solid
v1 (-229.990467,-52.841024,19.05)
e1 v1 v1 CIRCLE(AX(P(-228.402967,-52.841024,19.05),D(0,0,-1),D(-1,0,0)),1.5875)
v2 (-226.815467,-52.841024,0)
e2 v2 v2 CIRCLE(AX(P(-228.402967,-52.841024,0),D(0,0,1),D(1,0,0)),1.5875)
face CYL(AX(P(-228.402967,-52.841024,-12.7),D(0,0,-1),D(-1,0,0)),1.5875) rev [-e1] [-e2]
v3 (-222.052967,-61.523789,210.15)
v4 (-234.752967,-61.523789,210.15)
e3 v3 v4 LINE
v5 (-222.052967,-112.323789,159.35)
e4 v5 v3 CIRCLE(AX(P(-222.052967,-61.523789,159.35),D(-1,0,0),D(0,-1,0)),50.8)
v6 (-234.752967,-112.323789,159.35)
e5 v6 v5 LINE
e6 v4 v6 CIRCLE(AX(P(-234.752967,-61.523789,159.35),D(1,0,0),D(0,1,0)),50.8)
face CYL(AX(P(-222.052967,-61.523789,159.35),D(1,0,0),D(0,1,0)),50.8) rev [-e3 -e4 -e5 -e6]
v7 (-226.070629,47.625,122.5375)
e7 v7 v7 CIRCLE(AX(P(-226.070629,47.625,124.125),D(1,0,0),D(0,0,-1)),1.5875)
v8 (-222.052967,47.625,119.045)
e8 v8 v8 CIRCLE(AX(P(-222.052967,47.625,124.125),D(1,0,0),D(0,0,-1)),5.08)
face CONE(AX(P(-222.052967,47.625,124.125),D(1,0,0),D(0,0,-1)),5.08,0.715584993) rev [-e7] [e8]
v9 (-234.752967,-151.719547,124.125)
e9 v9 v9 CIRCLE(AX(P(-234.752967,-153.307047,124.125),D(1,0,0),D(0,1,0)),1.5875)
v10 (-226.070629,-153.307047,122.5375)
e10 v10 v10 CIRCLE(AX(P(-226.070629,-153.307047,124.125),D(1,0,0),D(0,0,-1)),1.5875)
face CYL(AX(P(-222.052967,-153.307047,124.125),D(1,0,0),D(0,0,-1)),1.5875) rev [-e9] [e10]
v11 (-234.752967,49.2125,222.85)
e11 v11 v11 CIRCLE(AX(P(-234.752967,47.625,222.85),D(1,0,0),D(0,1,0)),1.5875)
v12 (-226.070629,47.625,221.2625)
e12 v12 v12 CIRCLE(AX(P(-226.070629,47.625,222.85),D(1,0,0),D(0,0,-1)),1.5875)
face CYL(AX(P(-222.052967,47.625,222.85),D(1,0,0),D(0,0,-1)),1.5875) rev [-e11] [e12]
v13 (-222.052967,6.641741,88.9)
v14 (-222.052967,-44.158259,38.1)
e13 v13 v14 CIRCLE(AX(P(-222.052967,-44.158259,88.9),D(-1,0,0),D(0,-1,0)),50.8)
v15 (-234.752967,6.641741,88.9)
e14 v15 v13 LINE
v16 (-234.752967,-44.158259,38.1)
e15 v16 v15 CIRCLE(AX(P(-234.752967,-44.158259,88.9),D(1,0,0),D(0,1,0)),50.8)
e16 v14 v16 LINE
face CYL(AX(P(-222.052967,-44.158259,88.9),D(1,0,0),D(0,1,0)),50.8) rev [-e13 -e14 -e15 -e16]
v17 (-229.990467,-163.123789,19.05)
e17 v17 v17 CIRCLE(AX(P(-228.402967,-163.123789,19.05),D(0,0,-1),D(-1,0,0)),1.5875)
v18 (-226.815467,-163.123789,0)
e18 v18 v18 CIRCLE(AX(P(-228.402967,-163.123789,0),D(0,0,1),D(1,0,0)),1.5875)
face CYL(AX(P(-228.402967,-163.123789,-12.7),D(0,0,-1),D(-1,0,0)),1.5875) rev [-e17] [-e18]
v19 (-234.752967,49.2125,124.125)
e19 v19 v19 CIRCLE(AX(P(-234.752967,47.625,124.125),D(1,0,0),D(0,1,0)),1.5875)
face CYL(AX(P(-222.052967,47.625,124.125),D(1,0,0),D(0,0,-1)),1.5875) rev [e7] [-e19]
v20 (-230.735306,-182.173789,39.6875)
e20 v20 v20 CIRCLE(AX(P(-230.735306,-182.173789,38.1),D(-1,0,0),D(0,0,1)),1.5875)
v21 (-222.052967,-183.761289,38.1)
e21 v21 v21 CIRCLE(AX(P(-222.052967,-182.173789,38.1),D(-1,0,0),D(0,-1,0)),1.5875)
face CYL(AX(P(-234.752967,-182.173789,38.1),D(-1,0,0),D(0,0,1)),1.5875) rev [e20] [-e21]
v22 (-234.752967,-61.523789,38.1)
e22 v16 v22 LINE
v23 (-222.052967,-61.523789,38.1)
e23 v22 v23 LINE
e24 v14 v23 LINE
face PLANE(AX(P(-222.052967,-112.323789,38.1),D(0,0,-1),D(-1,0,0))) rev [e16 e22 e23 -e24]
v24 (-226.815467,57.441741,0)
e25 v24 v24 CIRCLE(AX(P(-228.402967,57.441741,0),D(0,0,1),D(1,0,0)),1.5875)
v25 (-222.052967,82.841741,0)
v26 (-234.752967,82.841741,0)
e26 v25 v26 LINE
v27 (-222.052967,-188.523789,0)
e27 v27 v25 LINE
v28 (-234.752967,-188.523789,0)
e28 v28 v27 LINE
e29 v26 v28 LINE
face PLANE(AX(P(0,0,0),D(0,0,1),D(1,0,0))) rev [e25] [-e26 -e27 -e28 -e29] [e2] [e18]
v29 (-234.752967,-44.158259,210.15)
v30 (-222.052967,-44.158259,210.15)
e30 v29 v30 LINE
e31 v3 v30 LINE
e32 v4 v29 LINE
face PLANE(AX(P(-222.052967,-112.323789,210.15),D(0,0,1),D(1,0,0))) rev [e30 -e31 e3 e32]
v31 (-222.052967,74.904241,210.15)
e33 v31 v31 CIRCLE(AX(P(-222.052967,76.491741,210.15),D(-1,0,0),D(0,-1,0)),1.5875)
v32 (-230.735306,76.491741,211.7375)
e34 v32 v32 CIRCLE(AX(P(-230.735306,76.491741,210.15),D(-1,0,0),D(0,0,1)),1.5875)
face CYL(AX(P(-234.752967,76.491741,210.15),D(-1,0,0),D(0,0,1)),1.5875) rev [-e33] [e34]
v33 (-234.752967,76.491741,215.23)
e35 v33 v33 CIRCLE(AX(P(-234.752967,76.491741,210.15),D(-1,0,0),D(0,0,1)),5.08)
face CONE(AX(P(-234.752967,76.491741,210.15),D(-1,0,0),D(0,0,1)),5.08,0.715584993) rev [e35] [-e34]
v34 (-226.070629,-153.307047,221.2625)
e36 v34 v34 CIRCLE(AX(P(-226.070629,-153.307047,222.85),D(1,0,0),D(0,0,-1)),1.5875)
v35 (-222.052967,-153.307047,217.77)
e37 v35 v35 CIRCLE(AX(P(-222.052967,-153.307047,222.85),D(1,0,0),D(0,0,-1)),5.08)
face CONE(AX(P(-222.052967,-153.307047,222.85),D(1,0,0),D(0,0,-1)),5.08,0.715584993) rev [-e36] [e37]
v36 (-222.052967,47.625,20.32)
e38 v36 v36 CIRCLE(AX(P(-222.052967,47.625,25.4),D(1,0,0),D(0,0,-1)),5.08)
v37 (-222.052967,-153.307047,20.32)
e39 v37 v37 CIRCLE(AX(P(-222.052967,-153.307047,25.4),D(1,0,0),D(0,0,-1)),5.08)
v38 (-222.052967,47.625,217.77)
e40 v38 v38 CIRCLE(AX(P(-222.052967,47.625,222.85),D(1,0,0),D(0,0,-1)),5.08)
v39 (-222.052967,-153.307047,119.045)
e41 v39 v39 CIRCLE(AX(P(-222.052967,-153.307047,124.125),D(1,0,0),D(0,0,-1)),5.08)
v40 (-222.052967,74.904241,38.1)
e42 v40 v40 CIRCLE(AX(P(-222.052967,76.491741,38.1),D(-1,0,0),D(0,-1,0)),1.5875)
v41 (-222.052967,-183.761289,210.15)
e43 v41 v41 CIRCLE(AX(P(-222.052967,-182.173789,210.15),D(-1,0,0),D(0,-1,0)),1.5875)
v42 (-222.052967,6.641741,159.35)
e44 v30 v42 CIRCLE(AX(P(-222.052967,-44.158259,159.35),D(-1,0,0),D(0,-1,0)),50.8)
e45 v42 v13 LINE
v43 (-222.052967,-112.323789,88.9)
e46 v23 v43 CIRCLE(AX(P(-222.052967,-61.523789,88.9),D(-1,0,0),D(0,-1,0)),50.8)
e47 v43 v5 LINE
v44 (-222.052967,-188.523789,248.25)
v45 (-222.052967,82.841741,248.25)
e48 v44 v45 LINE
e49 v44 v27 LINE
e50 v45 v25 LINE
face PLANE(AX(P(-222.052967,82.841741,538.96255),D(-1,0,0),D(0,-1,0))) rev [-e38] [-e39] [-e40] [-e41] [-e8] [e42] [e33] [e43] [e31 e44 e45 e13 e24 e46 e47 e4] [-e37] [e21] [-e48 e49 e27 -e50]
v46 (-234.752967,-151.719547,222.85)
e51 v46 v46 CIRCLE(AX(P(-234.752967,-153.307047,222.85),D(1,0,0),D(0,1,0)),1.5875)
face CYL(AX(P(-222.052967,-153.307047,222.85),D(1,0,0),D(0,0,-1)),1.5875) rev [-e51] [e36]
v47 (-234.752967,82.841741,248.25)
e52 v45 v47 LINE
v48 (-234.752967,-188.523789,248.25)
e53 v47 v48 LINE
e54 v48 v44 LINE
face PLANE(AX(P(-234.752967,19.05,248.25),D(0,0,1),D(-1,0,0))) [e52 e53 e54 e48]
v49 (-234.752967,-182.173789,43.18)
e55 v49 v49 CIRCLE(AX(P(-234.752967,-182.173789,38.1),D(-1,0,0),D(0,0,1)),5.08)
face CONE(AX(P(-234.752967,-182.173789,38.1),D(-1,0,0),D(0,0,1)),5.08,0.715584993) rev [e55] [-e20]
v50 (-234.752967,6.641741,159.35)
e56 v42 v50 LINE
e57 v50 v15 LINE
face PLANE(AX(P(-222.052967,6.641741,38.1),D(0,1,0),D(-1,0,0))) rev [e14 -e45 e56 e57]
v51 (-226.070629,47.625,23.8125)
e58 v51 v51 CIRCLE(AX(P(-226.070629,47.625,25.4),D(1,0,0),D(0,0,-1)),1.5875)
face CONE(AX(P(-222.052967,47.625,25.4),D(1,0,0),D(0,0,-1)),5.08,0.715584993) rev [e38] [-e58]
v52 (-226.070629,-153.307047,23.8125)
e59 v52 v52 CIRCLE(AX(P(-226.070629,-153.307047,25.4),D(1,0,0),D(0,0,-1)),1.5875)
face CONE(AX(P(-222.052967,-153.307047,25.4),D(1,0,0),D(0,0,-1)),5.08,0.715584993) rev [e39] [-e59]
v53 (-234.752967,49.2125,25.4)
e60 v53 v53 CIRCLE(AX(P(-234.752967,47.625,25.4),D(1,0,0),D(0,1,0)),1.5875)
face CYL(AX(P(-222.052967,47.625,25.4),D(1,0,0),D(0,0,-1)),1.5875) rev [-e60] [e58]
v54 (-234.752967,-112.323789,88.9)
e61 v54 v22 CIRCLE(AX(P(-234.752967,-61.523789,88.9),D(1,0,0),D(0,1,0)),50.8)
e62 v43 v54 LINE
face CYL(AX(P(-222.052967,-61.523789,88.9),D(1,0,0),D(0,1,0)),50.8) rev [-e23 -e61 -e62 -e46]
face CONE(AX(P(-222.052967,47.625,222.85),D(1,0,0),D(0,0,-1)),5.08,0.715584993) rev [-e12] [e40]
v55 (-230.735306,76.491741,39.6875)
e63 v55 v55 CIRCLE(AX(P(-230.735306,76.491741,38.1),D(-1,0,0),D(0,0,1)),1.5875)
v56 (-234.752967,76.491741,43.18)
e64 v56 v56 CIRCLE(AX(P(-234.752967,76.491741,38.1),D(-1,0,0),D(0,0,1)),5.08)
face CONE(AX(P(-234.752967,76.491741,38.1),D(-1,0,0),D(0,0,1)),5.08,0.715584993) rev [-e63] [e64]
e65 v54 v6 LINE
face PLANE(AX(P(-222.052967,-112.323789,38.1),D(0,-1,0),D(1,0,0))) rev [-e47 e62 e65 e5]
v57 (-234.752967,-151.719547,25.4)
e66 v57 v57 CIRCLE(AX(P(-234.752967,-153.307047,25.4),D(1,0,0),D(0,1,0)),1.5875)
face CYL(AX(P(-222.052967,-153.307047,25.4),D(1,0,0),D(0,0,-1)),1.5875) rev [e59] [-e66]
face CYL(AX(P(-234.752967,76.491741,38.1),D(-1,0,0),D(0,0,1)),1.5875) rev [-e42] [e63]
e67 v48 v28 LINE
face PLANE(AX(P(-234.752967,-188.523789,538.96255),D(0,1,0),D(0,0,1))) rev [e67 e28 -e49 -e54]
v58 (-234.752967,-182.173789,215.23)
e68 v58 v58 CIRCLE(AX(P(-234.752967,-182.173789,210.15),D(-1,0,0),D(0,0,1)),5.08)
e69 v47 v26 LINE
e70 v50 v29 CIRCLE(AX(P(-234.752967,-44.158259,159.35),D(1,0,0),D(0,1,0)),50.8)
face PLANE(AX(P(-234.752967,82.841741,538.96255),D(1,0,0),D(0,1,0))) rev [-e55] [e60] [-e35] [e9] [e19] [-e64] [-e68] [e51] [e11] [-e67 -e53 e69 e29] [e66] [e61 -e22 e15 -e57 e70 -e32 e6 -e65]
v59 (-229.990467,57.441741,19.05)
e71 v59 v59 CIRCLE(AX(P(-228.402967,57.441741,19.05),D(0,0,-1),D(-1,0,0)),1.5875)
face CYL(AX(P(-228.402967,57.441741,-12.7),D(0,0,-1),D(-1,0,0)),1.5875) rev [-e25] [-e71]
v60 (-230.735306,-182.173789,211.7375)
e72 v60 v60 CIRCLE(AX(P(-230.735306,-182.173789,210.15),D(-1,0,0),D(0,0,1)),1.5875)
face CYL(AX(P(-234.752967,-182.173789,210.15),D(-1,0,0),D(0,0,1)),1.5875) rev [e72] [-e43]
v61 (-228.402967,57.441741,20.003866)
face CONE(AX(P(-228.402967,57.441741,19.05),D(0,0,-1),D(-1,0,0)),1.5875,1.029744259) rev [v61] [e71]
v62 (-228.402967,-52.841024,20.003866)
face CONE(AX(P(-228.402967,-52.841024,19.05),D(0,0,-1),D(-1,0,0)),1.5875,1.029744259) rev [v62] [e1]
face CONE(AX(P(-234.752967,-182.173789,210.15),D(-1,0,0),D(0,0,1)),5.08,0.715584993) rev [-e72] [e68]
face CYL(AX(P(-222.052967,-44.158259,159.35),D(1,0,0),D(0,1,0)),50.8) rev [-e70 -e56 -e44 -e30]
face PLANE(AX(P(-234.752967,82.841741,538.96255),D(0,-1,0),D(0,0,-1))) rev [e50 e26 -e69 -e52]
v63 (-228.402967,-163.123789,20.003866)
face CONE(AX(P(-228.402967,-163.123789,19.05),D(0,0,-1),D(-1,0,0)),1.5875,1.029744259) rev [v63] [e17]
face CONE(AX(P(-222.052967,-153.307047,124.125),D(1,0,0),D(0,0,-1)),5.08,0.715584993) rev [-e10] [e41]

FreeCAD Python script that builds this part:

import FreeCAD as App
import Part
import Sketcher
Q = App.Units.Quantity


def edges_at(feature, points):
    """Names of the edges that pass closest to the given points."""
    edges = feature.Shape.Edges
    near = lambda p: min(range(len(edges)), key=lambda i: edges[i].distToShape(Part.Vertex(*p))[0])
    return sorted({f"Edge{near(p) + 1}" for p in points})

doc = App.newDocument("Part")
body = doc.addObject("PartDesign::Body", "Body")

# Sketch on XY plane
sketch1 = body.newObject("Sketcher::SketchObject", "Sketch")
sketch1.AttachmentSupport = (doc.getObject("XY_Plane"), [""])
sketch1.MapMode = "FlatFace"
sketch1.addGeometry([
    Part.LineSegment(App.Vector(-235, 83, 0), App.Vector(-235, -189, 0)),
    Part.LineSegment(App.Vector(-235, -189, 0), App.Vector(-222, -189, 0)),
    Part.LineSegment(App.Vector(-222, -189, 0), App.Vector(-222, 83, 0)),
    Part.LineSegment(App.Vector(-222, 83, 0), App.Vector(-235, 83, 0)),
], False)
sketch1.addConstraint([
    Sketcher.Constraint("Coincident", 0, 2, 1, 1),
    Sketcher.Constraint("Coincident", 1, 2, 2, 1),
    Sketcher.Constraint("Coincident", 2, 2, 3, 1),
    Sketcher.Constraint("Coincident", 3, 2, 0, 1),
    Sketcher.Constraint("Vertical", 0),
    Sketcher.Constraint("Horizontal", 1),
    Sketcher.Constraint("Vertical", 2),
    Sketcher.Constraint("Horizontal", 3),
    Sketcher.Constraint("DistanceX", 1, 1, 1, 2, Q("0.5 in")),
    Sketcher.Constraint("DistanceY", 0, 2, 0, 1, Q("271.36553 mm")),
    Sketcher.Constraint("DistanceY", 0, 2, -1, 1, Q("188.523789 mm")),
    Sketcher.Constraint("DistanceX", 0, 2, -1, 1, Q("234.752967 mm")),
])
pad1 = body.newObject("PartDesign::Pad", "Pad")
pad1.Profile = sketch1
pad1.Length = 248.25

# Sketch on YZ plane
sketch2 = body.newObject("Sketcher::SketchObject", "Sketch001")
sketch2.AttachmentSupport = (doc.getObject("YZ_Plane"), [""])
sketch2.MapMode = "FlatFace"
sketch2.AttachmentOffset = App.Placement(App.Vector(0, 0, -234.752967), App.Rotation())
sketch2.addGeometry([
    Part.LineSegment(App.Vector(7, 38, 0), App.Vector(-112, 38, 0)),
    Part.LineSegment(App.Vector(-112, 38, 0), App.Vector(-112, 210, 0)),
    Part.LineSegment(App.Vector(-112, 210, 0), App.Vector(7, 210, 0)),
    Part.LineSegment(App.Vector(7, 210, 0), App.Vector(7, 38, 0)),
], False)
sketch2.addConstraint([
    Sketcher.Constraint("Coincident", 0, 2, 1, 1),
    Sketcher.Constraint("Coincident", 1, 2, 2, 1),
    Sketcher.Constraint("Coincident", 2, 2, 3, 1),
    Sketcher.Constraint("Coincident", 3, 2, 0, 1),
    Sketcher.Constraint("Horizontal", 0),
    Sketcher.Constraint("Vertical", 1),
    Sketcher.Constraint("Horizontal", 2),
    Sketcher.Constraint("Vertical", 3),
    Sketcher.Constraint("DistanceY", -1, 1, 0, 2, Q("1.5 in")),
    Sketcher.Constraint("DistanceY", 1, 1, 1, 2, Q("172.05 mm")),
    Sketcher.Constraint("DistanceX", 0, 2, 0, 1, Q("118.96553 mm")),
    Sketcher.Constraint("DistanceX", 0, 2, -1, 1, Q("112.323789 mm")),
])
pocket1 = body.newObject("PartDesign::Pocket", "Pocket")
pocket1.Profile = sketch2
pocket1.Type = "ThroughAll"
pocket1.Reversed = True
doc.recompute()

fillet = body.newObject("PartDesign::Fillet", "Fillet")
fillet.Base = (pocket1, edges_at(pocket1, [
    (-228.403, 6.642, 210.15),
    (-228.403, -112.324, 210.15),
    (-228.403, -112.324, 38.1),
    (-228.403, 6.642, 38.1),
]))
fillet.Radius = Q("2 in")

# Sketch on XY plane
sketch3 = body.newObject("Sketcher::SketchObject", "Sketch002")
sketch3.AttachmentSupport = (doc.getObject("XY_Plane"), [""])
sketch3.MapMode = "FlatFace"
sketch3.AttachmentOffset = App.Placement(App.Vector(0, 0, -0.5 * 25.4), App.Rotation())
sketch3.addGeometry([
    Part.Circle(App.Vector(-203, -182.2, 0), App.Vector(0, 0, 1), 1.6),  # 0
    Part.Circle(App.Vector(-203, 76.5, 0), App.Vector(0, 0, 1), 1.6),  # 1
    Part.Circle(App.Vector(-123.7, 76.5, 0), App.Vector(0, 0, 1), 1.6),  # 2
    Part.Circle(App.Vector(-228.4, 57.4, 0), App.Vector(0, 0, 1), 1.6),  # 3
    Part.Circle(App.Vector(-228.4, -52.8, 0), App.Vector(0, 0, 1), 1.6),  # 4
    Part.Circle(App.Vector(-228.4, -163.1, 0), App.Vector(0, 0, 1), 1.6),  # 5
    Part.Circle(App.Vector(-123.7, -182.2, 0), App.Vector(0, 0, 1), 1.6),  # 6
], False)
sketch3.addConstraint([
    Sketcher.Constraint("Equal", 0, 1),
    Sketcher.Constraint("Equal", 1, 2),
    Sketcher.Constraint("Equal", 2, 3),
    Sketcher.Constraint("Equal", 3, 4),
    Sketcher.Constraint("Equal", 4, 5),
    Sketcher.Constraint("Equal", 5, 6),
    Sketcher.Constraint("Horizontal", 1, 3, 2, 3),
    Sketcher.Constraint("Horizontal", 0, 3, 6, 3),
    Sketcher.Constraint("Vertical", 0, 3, 1, 3),
    Sketcher.Constraint("Vertical", 3, 3, 4, 3),
    Sketcher.Constraint("Vertical", 4, 3, 5, 3),
    Sketcher.Constraint("Vertical", 2, 3, 6, 3),
    Sketcher.Constraint("Diameter", 0, Q("0.125 in")),
    Sketcher.Constraint("DistanceX", 3, 3, 1, 3, Q("1 in")),
    Sketcher.Constraint("DistanceY", 3, 3, 1, 3, Q("0.75 in")),
    Sketcher.Constraint("DistanceY", 0, 3, 5, 3, Q("0.75 in")),
    Sketcher.Constraint("DistanceY", 0, 3, -1, 1, Q("182.173789 mm")),
    Sketcher.Constraint("DistanceY", -1, 1, 1, 3, Q("76.491741 mm")),
    Sketcher.Constraint("DistanceX", 1, 3, 2, 3, Q("79.25564 mm")),
    Sketcher.Constraint("DistanceX", 0, 3, -1, 1, Q("203.002967 mm")),
    Sketcher.Constraint("DistanceY", 4, 3, -1, 1, Q("52.841024 mm")),
])
doc.recompute()
hole = body.newObject("PartDesign::Hole", "Hole")
hole.Profile = sketch3
hole.ThreadType = "None"
hole.Diameter = Q("0.125 in")
hole.DepthType = "Dimension"
hole.Depth = Q("1.25 in")
hole.DrillPoint = "Angled"
hole.DrillPointAngle = 118
hole.HoleCutType = "Countersink"
hole.HoleCutDiameter = Q("0.4 in")
hole.HoleCutCountersinkAngle = 82
hole.Reversed = True

# Sketch on YZ plane
sketch4 = body.newObject("Sketcher::SketchObject", "Sketch003")
sketch4.AttachmentSupport = (doc.getObject("YZ_Plane"), [""])
sketch4.MapMode = "FlatFace"
sketch4.AttachmentOffset = App.Placement(App.Vector(0, 0, -234.752967), App.Rotation())
sketch4.addGeometry([
    Part.Circle(App.Vector(76.5, 210.2, 0), App.Vector(0, 0, 1), 1.6),
    Part.Circle(App.Vector(76.5, 38.1, 0), App.Vector(0, 0, 1), 1.6),
    Part.Circle(App.Vector(-182.2, 38.1, 0), App.Vector(0, 0, 1), 1.6),
    Part.Circle(App.Vector(-182.2, 210.2, 0), App.Vector(0, 0, 1), 1.6),
], False)
sketch4.addConstraint([
    Sketcher.Constraint("Equal", 0, 1),
    Sketcher.Constraint("Equal", 1, 2),
    Sketcher.Constraint("Equal", 2, 3),
    Sketcher.Constraint("Horizontal", 1, 3, 2, 3),
    Sketcher.Constraint("Horizontal", 0, 3, 3, 3),
    Sketcher.Constraint("Vertical", 0, 3, 1, 3),
    Sketcher.Constraint("Vertical", 2, 3, 3, 3),
    Sketcher.Constraint("Diameter", 0, Q("0.125 in")),
    Sketcher.Constraint("DistanceY", -1, 1, 1, 3, Q("1.5 in")),
    Sketcher.Constraint("DistanceY", -1, 1, 0, 3, Q("210.15 mm")),
    Sketcher.Constraint("DistanceX", -1, 1, 0, 3, Q("76.491741 mm")),
    Sketcher.Constraint("DistanceX", 2, 3, -1, 1, Q("182.173789 mm")),
])
doc.recompute()
hole2 = body.newObject("PartDesign::Hole", "Hole001")
hole2.Profile = sketch4
hole2.ThreadType = "None"
hole2.Diameter = Q("0.125 in")
hole2.DepthType = "Dimension"
hole2.Depth = Q("1.25 in")
hole2.DrillPoint = "Angled"
hole2.DrillPointAngle = 118
hole2.HoleCutType = "Countersink"
hole2.HoleCutDiameter = Q("0.4 in")
hole2.HoleCutCountersinkAngle = 82
hole2.Reversed = True

# Sketch on YZ plane
sketch5 = body.newObject("Sketcher::SketchObject", "Sketch004")
sketch5.AttachmentSupport = (doc.getObject("YZ_Plane"), [""])
sketch5.MapMode = "FlatFace"
sketch5.AttachmentOffset = App.Placement(App.Vector(0, 0, -222.052967), App.Rotation())
sketch5.addGeometry([
    Part.Circle(App.Vector(-153.3, 222.8, 0), App.Vector(0, 0, 1), 1.6),  # 0
    Part.Circle(App.Vector(47.6, 222.8, 0), App.Vector(0, 0, 1), 1.6),  # 1
    Part.Circle(App.Vector(47.6, 25.4, 0), App.Vector(0, 0, 1), 1.6),  # 2
    Part.Circle(App.Vector(47.6, 124.1, 0), App.Vector(0, 0, 1), 1.6),  # 3
    Part.Circle(App.Vector(-153.3, 124.1, 0), App.Vector(0, 0, 1), 1.6),  # 4
    Part.Circle(App.Vector(-153.3, 25.4, 0), App.Vector(0, 0, 1), 1.6),  # 5
], False)
sketch5.addConstraint([
    Sketcher.Constraint("Equal", 0, 1),
    Sketcher.Constraint("Equal", 1, 2),
    Sketcher.Constraint("Equal", 2, 3),
    Sketcher.Constraint("Equal", 3, 4),
    Sketcher.Constraint("Equal", 4, 5),
    Sketcher.Constraint("Horizontal", 0, 3, 1, 3),
    Sketcher.Constraint("Horizontal", 3, 3, 4, 3),
    Sketcher.Constraint("Horizontal", 2, 3, 5, 3),
    Sketcher.Constraint("Vertical", 1, 3, 2, 3),
    Sketcher.Constraint("Vertical", 2, 3, 3, 3),
    Sketcher.Constraint("Vertical", 0, 3, 4, 3),
    Sketcher.Constraint("Vertical", 4, 3, 5, 3),
    Sketcher.Constraint("Diameter", 0, Q("0.125 in")),
    Sketcher.Constraint("DistanceY", -1, 1, 2, 3, Q("1 in")),
    Sketcher.Constraint("DistanceX", -1, 1, 1, 3, Q("1.875 in")),
    Sketcher.Constraint("DistanceY", -1, 1, 0, 3, Q("222.85 mm")),
    Sketcher.Constraint("DistanceY", -1, 1, 3, 3, Q("124.125 mm")),
    Sketcher.Constraint("DistanceX", 0, 3, -1, 1, Q("153.307047 mm")),
])
doc.recompute()
hole3 = body.newObject("PartDesign::Hole", "Hole002")
hole3.Profile = sketch5
hole3.ThreadType = "None"
hole3.Diameter = Q("0.125 in")
hole3.DepthType = "Dimension"
hole3.Depth = Q("1.25 in")
hole3.DrillPoint = "Angled"
hole3.DrillPointAngle = 118
hole3.HoleCutType = "Countersink"
hole3.HoleCutDiameter = Q("0.4 in")
hole3.HoleCutCountersinkAngle = 82

doc.recompute()
